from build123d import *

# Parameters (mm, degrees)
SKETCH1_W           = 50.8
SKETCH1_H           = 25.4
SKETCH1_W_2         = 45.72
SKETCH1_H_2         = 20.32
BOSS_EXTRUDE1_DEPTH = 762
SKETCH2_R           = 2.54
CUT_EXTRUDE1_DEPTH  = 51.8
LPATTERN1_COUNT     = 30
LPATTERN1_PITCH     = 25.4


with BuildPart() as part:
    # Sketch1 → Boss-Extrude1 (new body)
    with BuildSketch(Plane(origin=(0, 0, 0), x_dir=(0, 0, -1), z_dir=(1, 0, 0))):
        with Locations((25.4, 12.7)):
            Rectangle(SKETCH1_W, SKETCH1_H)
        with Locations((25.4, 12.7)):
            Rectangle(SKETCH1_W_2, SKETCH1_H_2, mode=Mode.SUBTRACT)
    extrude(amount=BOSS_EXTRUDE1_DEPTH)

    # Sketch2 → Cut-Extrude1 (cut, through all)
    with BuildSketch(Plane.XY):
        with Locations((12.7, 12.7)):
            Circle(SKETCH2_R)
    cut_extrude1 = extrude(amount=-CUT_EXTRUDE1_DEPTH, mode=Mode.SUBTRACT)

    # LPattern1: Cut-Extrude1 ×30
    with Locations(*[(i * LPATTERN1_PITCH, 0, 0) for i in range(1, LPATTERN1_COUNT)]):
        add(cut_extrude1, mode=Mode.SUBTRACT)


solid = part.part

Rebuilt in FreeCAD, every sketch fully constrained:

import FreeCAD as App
import Part
import Sketcher
from FreeCAD import Vector
Q = App.Units.Quantity

doc = App.newDocument("Part")
body = doc.addObject("PartDesign::Body", "Body")

# Sketch on YZ plane
sketch1 = doc.addObject("Sketcher::SketchObject", "Sketch")
body.addObject(sketch1)
sketch1.AttachmentSupport = (doc.YZ_Plane, [""])
sketch1.MapMode = "FlatFace"
sketch1.addGeometry(Part.LineSegment(Vector(25, 0, 0), Vector(0, 0, 0)), False)
sketch1.addGeometry(Part.LineSegment(Vector(0, 0, 0), Vector(0, -51, 0)), False)
sketch1.addGeometry(Part.LineSegment(Vector(0, -51, 0), Vector(25, -51, 0)), False)
sketch1.addGeometry(Part.LineSegment(Vector(25, -51, 0), Vector(25, 0, 0)), False)
sketch1.addGeometry(Part.LineSegment(Vector(3, -48, 0), Vector(3, -3, 0)), False)
sketch1.addGeometry(Part.LineSegment(Vector(3, -3, 0), Vector(23, -3, 0)), False)
sketch1.addGeometry(Part.LineSegment(Vector(23, -3, 0), Vector(23, -48, 0)), False)
sketch1.addGeometry(Part.LineSegment(Vector(23, -48, 0), Vector(3, -48, 0)), False)
sketch1.addConstraint(Sketcher.Constraint("Coincident", 0, 2, 1, 1))
sketch1.addConstraint(Sketcher.Constraint("Coincident", 1, 2, 2, 1))
sketch1.addConstraint(Sketcher.Constraint("Coincident", 2, 2, 3, 1))
sketch1.addConstraint(Sketcher.Constraint("Coincident", 3, 2, 0, 1))
sketch1.addConstraint(Sketcher.Constraint("Coincident", 4, 2, 5, 1))
sketch1.addConstraint(Sketcher.Constraint("Coincident", 5, 2, 6, 1))
sketch1.addConstraint(Sketcher.Constraint("Coincident", 6, 2, 7, 1))
sketch1.addConstraint(Sketcher.Constraint("Coincident", 7, 2, 4, 1))
sketch1.addConstraint(Sketcher.Constraint("Horizontal", 0))
sketch1.addConstraint(Sketcher.Constraint("Vertical", 1))
sketch1.addConstraint(Sketcher.Constraint("Horizontal", 2))
sketch1.addConstraint(Sketcher.Constraint("Vertical", 3))
sketch1.addConstraint(Sketcher.Constraint("Vertical", 4))
sketch1.addConstraint(Sketcher.Constraint("Horizontal", 5))
sketch1.addConstraint(Sketcher.Constraint("Vertical", 6))
sketch1.addConstraint(Sketcher.Constraint("Horizontal", 7))
sketch1.addConstraint(Sketcher.Constraint("Coincident", 0, 2, -1, 1))
sketch1.addConstraint(Sketcher.Constraint("DistanceX", 0, 2, 0, 1, Q("1 in")))
sketch1.addConstraint(Sketcher.Constraint("DistanceY", 1, 2, 1, 1, Q("2 in")))
sketch1.addConstraint(Sketcher.Constraint("DistanceX", 5, 1, 5, 2, Q("0.8 in")))
sketch1.addConstraint(Sketcher.Constraint("DistanceY", 4, 1, 4, 2, Q("1.8 in")))
sketch1.addConstraint(Sketcher.Constraint("DistanceX", -1, 1, 4, 2, Q("0.1 in")))
sketch1.addConstraint(Sketcher.Constraint("DistanceY", 4, 2, -1, 1, Q("0.1 in")))
pad1 = doc.addObject("PartDesign::Pad", "Pad")
body.addObject(pad1)
pad1.Profile = sketch1
pad1.Length = Q("30 in")

# Sketch on XY plane
sketch2 = doc.addObject("Sketcher::SketchObject", "Sketch001")
body.addObject(sketch2)
sketch2.AttachmentSupport = (doc.XY_Plane, [""])
sketch2.MapMode = "FlatFace"
sketch2.addGeometry(Part.Circle(Vector(12.7, 12.7, 0), Vector(0, 0, 1), 2.5), False)
sketch2.addConstraint(Sketcher.Constraint("Diameter", 0, Q("0.2 in")))
sketch2.addConstraint(Sketcher.Constraint("DistanceX", -1, 1, 0, 3, Q("0.5 in")))
sketch2.addConstraint(Sketcher.Constraint("DistanceY", -1, 1, 0, 3, Q("0.5 in")))
pocket1 = doc.addObject("PartDesign::Pocket", "Pocket")
body.addObject(pocket1)
pocket1.Profile = sketch2
pocket1.Type = "ThroughAll"
doc.recompute()

linearpattern = doc.addObject("PartDesign::LinearPattern", "LinearPattern")
body.addObject(linearpattern)
linearpattern.Originals = [pocket1]
linearpattern.Direction = (doc.X_Axis, [""])
linearpattern.Mode = "offset"
linearpattern.Offset = Q("1 in")
linearpattern.Occurrences = 30
body.Tip = linearpattern

doc.recompute()
